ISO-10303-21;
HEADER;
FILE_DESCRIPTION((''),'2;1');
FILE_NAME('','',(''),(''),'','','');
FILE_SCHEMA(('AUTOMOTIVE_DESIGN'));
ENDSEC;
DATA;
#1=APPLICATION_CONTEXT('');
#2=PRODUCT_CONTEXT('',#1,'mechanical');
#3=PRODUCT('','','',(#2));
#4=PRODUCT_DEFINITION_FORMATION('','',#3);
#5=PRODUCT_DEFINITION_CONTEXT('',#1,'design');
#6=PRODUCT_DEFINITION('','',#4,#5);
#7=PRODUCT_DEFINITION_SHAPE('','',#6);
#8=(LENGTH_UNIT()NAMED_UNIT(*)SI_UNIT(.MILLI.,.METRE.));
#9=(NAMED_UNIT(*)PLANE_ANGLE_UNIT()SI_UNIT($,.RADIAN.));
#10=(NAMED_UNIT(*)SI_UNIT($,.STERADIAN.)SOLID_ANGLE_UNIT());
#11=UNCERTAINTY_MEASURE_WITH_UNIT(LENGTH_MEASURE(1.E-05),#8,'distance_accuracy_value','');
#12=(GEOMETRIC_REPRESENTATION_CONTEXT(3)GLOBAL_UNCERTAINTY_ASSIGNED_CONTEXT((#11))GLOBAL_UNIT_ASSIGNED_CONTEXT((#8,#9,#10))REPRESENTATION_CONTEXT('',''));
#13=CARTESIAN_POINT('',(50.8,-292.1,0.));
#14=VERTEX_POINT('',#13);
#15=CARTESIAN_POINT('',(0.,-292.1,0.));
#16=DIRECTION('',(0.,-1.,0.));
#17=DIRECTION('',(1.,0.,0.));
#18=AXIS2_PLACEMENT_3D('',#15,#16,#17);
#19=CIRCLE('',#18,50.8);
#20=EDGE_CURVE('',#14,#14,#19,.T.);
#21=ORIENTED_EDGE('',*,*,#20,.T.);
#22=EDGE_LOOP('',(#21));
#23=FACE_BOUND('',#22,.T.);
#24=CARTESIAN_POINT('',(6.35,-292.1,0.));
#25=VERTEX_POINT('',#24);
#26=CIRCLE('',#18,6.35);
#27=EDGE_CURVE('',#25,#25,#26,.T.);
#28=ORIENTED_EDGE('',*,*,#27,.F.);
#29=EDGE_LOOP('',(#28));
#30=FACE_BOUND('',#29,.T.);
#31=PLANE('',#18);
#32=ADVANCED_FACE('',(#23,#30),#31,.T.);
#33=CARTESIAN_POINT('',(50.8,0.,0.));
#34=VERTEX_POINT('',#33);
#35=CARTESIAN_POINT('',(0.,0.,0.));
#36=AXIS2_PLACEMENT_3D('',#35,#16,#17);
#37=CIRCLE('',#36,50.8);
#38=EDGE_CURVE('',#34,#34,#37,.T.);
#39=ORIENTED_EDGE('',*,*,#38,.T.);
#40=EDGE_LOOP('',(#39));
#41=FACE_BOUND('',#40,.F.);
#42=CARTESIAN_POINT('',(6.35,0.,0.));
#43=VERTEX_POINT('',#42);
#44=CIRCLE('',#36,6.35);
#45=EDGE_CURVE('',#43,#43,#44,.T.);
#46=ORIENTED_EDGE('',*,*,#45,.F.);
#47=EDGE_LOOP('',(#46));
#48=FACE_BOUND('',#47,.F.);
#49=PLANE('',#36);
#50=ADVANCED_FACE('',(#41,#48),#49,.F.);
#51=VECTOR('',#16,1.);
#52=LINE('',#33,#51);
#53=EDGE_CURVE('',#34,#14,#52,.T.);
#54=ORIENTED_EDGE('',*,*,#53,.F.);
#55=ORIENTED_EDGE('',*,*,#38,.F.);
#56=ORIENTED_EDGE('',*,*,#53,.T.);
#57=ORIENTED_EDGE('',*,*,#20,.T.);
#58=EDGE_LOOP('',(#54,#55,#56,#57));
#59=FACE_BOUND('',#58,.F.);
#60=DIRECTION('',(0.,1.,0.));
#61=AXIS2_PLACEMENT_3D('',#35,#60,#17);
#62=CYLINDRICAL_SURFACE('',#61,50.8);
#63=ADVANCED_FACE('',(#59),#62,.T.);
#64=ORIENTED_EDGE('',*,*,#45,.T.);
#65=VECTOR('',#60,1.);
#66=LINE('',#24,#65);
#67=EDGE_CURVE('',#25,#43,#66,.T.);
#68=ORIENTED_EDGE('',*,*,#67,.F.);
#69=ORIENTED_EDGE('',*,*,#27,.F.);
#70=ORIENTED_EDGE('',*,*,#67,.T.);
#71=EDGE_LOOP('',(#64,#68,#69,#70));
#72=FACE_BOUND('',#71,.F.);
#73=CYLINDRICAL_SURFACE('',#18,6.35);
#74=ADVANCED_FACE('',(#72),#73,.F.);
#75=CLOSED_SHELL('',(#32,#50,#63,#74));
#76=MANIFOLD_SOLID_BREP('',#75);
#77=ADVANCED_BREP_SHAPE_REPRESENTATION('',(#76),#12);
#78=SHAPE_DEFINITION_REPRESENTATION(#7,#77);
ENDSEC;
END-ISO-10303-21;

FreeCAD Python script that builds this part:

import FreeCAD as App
import Part
import Sketcher
Q = App.Units.Quantity

doc = App.newDocument("Part")
body = doc.addObject("PartDesign::Body", "Body")

sketch1 = doc.addObject("Sketcher::SketchObject", "Sketch")
body.addObject(sketch1)
sketch1.AttachmentSupport = (doc.XZ_Plane, [""])
sketch1.MapMode = "FlatFace"
sketch1.addGeometry(Part.Circle(App.Vector(0, 0, 0), App.Vector(0, 0, 1), 50.8), False)
sketch1.addConstraint([
    Sketcher.Constraint("Coincident", 0, 3, -1, 1),
    Sketcher.Constraint("Diameter", 0, Q("4 in")),
])
pad1 = doc.addObject("PartDesign::Pad", "Pad")
body.addObject(pad1)
pad1.Profile = sketch1
pad1.Length = Q("11.5 in")

sketch2 = doc.addObject("Sketcher::SketchObject", "Sketch001")
body.addObject(sketch2)
sketch2.AttachmentSupport = (doc.XZ_Plane, [""])
sketch2.MapMode = "FlatFace"
sketch2.AttachmentOffset = App.Placement(App.Vector(0, 0, 11.5 * 25.4), App.Rotation())
sketch2.addGeometry(Part.Circle(App.Vector(0, 0, 0), App.Vector(0, 0, 1), 6.35), False)
sketch2.addConstraint([
    Sketcher.Constraint("Coincident", 0, 3, -1, 1),
    Sketcher.Constraint("Diameter", 0, Q("0.5 in")),
])
pocket1 = doc.addObject("PartDesign::Pocket", "Pocket")
body.addObject(pocket1)
pocket1.Profile = sketch2
pocket1.Length = Q("11.5 in")

doc.recompute()
